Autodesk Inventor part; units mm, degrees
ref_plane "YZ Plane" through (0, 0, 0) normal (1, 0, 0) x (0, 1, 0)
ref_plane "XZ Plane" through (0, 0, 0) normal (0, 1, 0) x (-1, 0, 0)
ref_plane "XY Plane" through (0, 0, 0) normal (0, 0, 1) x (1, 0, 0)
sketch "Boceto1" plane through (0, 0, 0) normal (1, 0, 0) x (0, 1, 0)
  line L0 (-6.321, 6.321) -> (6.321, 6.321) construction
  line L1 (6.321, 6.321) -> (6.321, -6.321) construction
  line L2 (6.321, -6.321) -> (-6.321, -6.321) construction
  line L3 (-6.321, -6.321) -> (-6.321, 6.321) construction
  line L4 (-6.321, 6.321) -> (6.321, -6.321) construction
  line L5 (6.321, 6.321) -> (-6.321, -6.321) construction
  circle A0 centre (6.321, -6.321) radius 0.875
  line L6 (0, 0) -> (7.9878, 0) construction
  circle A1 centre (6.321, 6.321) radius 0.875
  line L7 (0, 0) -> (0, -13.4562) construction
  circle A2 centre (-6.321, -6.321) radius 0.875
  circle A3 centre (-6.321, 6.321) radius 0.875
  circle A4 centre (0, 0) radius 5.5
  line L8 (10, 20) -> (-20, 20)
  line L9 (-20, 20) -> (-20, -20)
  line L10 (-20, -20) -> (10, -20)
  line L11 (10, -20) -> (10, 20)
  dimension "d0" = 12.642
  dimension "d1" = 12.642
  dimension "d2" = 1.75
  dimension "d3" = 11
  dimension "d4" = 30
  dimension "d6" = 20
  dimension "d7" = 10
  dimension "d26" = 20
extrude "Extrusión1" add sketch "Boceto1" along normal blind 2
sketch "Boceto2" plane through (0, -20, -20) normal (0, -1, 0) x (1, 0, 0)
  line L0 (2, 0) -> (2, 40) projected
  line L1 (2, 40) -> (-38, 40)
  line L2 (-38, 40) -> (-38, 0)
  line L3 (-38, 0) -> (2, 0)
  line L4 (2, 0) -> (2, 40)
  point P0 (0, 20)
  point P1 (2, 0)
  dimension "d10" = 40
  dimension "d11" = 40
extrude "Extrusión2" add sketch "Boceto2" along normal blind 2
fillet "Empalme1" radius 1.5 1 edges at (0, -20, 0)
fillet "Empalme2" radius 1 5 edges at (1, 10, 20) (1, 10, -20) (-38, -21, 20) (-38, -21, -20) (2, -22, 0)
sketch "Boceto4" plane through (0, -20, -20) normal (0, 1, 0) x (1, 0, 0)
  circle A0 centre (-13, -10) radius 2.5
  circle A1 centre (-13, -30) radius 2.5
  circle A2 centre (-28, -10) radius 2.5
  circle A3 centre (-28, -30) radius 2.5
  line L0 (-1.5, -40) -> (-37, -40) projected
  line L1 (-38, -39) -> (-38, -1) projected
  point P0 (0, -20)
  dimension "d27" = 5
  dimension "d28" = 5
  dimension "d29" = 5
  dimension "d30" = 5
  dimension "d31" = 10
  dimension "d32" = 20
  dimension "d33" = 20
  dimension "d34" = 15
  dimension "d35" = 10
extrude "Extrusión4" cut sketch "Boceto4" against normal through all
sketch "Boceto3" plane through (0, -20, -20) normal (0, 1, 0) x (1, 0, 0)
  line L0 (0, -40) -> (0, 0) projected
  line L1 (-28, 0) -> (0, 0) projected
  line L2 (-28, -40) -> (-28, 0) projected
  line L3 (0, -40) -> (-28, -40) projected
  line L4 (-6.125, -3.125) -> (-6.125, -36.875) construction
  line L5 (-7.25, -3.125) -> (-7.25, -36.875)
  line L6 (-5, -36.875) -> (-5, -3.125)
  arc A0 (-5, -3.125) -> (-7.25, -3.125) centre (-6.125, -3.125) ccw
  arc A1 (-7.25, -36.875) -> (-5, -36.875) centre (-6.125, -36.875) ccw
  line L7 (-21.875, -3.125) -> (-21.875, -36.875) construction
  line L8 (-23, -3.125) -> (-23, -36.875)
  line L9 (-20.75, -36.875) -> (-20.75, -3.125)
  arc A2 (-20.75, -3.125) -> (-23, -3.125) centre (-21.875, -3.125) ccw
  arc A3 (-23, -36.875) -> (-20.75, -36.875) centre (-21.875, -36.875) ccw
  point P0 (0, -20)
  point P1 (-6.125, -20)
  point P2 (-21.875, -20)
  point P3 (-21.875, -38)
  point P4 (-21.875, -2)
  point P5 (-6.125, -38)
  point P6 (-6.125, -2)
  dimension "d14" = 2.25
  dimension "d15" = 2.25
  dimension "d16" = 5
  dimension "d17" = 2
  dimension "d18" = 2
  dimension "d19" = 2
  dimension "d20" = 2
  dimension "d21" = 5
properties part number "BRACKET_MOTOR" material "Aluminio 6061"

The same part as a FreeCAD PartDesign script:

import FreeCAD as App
import Part
import Sketcher


def edges_at(feature, points):
    """Names of the edges that pass closest to the given points."""
    edges = feature.Shape.Edges
    near = lambda p: min(range(len(edges)), key=lambda i: edges[i].distToShape(Part.Vertex(*p))[0])
    return sorted({f"Edge{near(p) + 1}" for p in points})

doc = App.newDocument("Part")
body = doc.addObject("PartDesign::Body", "Body")

sketch1 = body.newObject("Sketcher::SketchObject", "Sketch")
sketch1.AttachmentSupport = (doc.getObject("YZ_Plane"), [""])
sketch1.MapMode = "FlatFace"
sketch1.addGeometry([
    Part.LineSegment(App.Vector(10, -20, 0), App.Vector(10, 20, 0)),
    Part.LineSegment(App.Vector(10, 20, 0), App.Vector(-20, 20, 0)),
    Part.LineSegment(App.Vector(-20, 20, 0), App.Vector(-20, -20, 0)),
    Part.LineSegment(App.Vector(-20, -20, 0), App.Vector(10, -20, 0)),
    Part.Circle(App.Vector(-6.3, -6.3, 0), App.Vector(0, 0, 1), 0.9),
    Part.Circle(App.Vector(6.3, -6.3, 0), App.Vector(0, 0, 1), 0.9),
    Part.Circle(App.Vector(-6.3, 6.3, 0), App.Vector(0, 0, 1), 0.9),
    Part.Circle(App.Vector(0, 0, 0), App.Vector(0, 0, 1), 5.5),
    Part.Circle(App.Vector(6.3, 6.3, 0), App.Vector(0, 0, 1), 0.9),
], False)
sketch1.addConstraint([
    Sketcher.Constraint("Coincident", 0, 2, 1, 1),
    Sketcher.Constraint("Coincident", 1, 2, 2, 1),
    Sketcher.Constraint("Coincident", 2, 2, 3, 1),
    Sketcher.Constraint("Coincident", 3, 2, 0, 1),
    Sketcher.Constraint("Vertical", 0),
    Sketcher.Constraint("Horizontal", 1),
    Sketcher.Constraint("Vertical", 2),
    Sketcher.Constraint("Horizontal", 3),
    Sketcher.Constraint("Coincident", 7, 3, -1, 1),
    Sketcher.Constraint("Equal", 4, 5),
    Sketcher.Constraint("Equal", 5, 6),
    Sketcher.Constraint("Equal", 6, 8),
    Sketcher.Constraint("Symmetric", 5, 3, 6, 3, -1, 1),
    Sketcher.Constraint("Symmetric", 4, 3, 8, 3, -1, 1),
    Sketcher.Constraint("Symmetric", 4, 3, 5, 3, -2),
    Sketcher.Constraint("Diameter", 7, 11.0),
    Sketcher.Constraint("Diameter", 4, 1.75),
    Sketcher.Constraint("DistanceX", 1, 2, 1, 1, 30.0),
    Sketcher.Constraint("DistanceX", -1, 1, 0, 2, 10.0),
    Sketcher.Constraint("DistanceY", -1, 1, 0, 2, 20.0),
    Sketcher.Constraint("DistanceY", 2, 2, -1, 1, 20.0),
    Sketcher.Constraint("DistanceX", 4, 3, 5, 3, 12.642),
    Sketcher.Constraint("DistanceY", 4, 3, 6, 3, 12.642),
])
pad1 = body.newObject("PartDesign::Pad", "Pad")
pad1.Profile = sketch1
pad1.Length = 2

sketch2 = body.newObject("Sketcher::SketchObject", "Sketch001")
sketch2.AttachmentSupport = (doc.getObject("XZ_Plane"), [""])
sketch2.MapMode = "FlatFace"
sketch2.AttachmentOffset = App.Placement(App.Vector(0, 0, 20), App.Rotation())
sketch2.addGeometry([
    Part.LineSegment(App.Vector(-38, -20, 0), App.Vector(2, -20, 0)),
    Part.LineSegment(App.Vector(2, -20, 0), App.Vector(2, 20, 0)),
    Part.LineSegment(App.Vector(2, 20, 0), App.Vector(-38, 20, 0)),
    Part.LineSegment(App.Vector(-38, 20, 0), App.Vector(-38, -20, 0)),
], False)
sketch2.addConstraint([
    Sketcher.Constraint("Coincident", 0, 2, 1, 1),
    Sketcher.Constraint("Coincident", 1, 2, 2, 1),
    Sketcher.Constraint("Coincident", 2, 2, 3, 1),
    Sketcher.Constraint("Coincident", 3, 2, 0, 1),
    Sketcher.Constraint("Horizontal", 0),
    Sketcher.Constraint("Vertical", 1),
    Sketcher.Constraint("Horizontal", 2),
    Sketcher.Constraint("Vertical", 3),
    Sketcher.Constraint("Equal", 2, 1),
    Sketcher.Constraint("DistanceX", 0, 1, 0, 2, 40.0),
    Sketcher.Constraint("DistanceX", -1, 1, 0, 2, 2.0),
    Sketcher.Constraint("DistanceY", 0, 2, -1, 1, 20.0),
])
pad2 = body.newObject("PartDesign::Pad", "Pad001")
pad2.Profile = sketch2
pad2.Length = 2
doc.recompute()

fillet = body.newObject("PartDesign::Fillet", "Fillet")
fillet.Base = (pad2, edges_at(pad2, [(0, -20, 0)]))
fillet.Radius = 1.5
doc.recompute()

fillet2 = body.newObject("PartDesign::Fillet", "Fillet001")
fillet2.Base = (fillet, edges_at(fillet, [
    (1, 10, 20),
    (1, 10, -20),
    (-38, -21, 20),
    (-38, -21, -20),
    (2, -22, 0),
]))
fillet2.Radius = 1

sketch3 = body.newObject("Sketcher::SketchObject", "Sketch002")
sketch3.AttachmentSupport = (doc.getObject("XZ_Plane"), [""])
sketch3.MapMode = "FlatFace"
sketch3.AttachmentOffset = App.Placement(App.Vector(0, 0, 20), App.Rotation())
sketch3.addGeometry([
    Part.Circle(App.Vector(-13, -10, 0), App.Vector(0, 0, 1), 2.5),
    Part.Circle(App.Vector(-13, 10, 0), App.Vector(0, 0, 1), 2.5),
    Part.Circle(App.Vector(-28, -10, 0), App.Vector(0, 0, 1), 2.5),
    Part.Circle(App.Vector(-28, 10, 0), App.Vector(0, 0, 1), 2.5),
], False)
sketch3.addConstraint([
    Sketcher.Constraint("Equal", 0, 1),
    Sketcher.Constraint("Equal", 1, 2),
    Sketcher.Constraint("Equal", 2, 3),
    Sketcher.Constraint("Symmetric", 0, 3, 1, 3, -1),
    Sketcher.Constraint("Symmetric", 2, 3, 3, 3, -1),
    Sketcher.Constraint("Horizontal", 0, 3, 2, 3),
    Sketcher.Constraint("Diameter", 0, 5.0),
    Sketcher.Constraint("DistanceY", 0, 3, -1, 1, 10.0),
    Sketcher.Constraint("DistanceX", 2, 3, 0, 3, 15.0),
    Sketcher.Constraint("DistanceX", 0, 3, -1, 1, 13.0),
])
pocket1 = body.newObject("PartDesign::Pocket", "Pocket")
pocket1.Profile = sketch3
pocket1.Type = "ThroughAll"
pocket1.Reversed = True

doc.recompute()
